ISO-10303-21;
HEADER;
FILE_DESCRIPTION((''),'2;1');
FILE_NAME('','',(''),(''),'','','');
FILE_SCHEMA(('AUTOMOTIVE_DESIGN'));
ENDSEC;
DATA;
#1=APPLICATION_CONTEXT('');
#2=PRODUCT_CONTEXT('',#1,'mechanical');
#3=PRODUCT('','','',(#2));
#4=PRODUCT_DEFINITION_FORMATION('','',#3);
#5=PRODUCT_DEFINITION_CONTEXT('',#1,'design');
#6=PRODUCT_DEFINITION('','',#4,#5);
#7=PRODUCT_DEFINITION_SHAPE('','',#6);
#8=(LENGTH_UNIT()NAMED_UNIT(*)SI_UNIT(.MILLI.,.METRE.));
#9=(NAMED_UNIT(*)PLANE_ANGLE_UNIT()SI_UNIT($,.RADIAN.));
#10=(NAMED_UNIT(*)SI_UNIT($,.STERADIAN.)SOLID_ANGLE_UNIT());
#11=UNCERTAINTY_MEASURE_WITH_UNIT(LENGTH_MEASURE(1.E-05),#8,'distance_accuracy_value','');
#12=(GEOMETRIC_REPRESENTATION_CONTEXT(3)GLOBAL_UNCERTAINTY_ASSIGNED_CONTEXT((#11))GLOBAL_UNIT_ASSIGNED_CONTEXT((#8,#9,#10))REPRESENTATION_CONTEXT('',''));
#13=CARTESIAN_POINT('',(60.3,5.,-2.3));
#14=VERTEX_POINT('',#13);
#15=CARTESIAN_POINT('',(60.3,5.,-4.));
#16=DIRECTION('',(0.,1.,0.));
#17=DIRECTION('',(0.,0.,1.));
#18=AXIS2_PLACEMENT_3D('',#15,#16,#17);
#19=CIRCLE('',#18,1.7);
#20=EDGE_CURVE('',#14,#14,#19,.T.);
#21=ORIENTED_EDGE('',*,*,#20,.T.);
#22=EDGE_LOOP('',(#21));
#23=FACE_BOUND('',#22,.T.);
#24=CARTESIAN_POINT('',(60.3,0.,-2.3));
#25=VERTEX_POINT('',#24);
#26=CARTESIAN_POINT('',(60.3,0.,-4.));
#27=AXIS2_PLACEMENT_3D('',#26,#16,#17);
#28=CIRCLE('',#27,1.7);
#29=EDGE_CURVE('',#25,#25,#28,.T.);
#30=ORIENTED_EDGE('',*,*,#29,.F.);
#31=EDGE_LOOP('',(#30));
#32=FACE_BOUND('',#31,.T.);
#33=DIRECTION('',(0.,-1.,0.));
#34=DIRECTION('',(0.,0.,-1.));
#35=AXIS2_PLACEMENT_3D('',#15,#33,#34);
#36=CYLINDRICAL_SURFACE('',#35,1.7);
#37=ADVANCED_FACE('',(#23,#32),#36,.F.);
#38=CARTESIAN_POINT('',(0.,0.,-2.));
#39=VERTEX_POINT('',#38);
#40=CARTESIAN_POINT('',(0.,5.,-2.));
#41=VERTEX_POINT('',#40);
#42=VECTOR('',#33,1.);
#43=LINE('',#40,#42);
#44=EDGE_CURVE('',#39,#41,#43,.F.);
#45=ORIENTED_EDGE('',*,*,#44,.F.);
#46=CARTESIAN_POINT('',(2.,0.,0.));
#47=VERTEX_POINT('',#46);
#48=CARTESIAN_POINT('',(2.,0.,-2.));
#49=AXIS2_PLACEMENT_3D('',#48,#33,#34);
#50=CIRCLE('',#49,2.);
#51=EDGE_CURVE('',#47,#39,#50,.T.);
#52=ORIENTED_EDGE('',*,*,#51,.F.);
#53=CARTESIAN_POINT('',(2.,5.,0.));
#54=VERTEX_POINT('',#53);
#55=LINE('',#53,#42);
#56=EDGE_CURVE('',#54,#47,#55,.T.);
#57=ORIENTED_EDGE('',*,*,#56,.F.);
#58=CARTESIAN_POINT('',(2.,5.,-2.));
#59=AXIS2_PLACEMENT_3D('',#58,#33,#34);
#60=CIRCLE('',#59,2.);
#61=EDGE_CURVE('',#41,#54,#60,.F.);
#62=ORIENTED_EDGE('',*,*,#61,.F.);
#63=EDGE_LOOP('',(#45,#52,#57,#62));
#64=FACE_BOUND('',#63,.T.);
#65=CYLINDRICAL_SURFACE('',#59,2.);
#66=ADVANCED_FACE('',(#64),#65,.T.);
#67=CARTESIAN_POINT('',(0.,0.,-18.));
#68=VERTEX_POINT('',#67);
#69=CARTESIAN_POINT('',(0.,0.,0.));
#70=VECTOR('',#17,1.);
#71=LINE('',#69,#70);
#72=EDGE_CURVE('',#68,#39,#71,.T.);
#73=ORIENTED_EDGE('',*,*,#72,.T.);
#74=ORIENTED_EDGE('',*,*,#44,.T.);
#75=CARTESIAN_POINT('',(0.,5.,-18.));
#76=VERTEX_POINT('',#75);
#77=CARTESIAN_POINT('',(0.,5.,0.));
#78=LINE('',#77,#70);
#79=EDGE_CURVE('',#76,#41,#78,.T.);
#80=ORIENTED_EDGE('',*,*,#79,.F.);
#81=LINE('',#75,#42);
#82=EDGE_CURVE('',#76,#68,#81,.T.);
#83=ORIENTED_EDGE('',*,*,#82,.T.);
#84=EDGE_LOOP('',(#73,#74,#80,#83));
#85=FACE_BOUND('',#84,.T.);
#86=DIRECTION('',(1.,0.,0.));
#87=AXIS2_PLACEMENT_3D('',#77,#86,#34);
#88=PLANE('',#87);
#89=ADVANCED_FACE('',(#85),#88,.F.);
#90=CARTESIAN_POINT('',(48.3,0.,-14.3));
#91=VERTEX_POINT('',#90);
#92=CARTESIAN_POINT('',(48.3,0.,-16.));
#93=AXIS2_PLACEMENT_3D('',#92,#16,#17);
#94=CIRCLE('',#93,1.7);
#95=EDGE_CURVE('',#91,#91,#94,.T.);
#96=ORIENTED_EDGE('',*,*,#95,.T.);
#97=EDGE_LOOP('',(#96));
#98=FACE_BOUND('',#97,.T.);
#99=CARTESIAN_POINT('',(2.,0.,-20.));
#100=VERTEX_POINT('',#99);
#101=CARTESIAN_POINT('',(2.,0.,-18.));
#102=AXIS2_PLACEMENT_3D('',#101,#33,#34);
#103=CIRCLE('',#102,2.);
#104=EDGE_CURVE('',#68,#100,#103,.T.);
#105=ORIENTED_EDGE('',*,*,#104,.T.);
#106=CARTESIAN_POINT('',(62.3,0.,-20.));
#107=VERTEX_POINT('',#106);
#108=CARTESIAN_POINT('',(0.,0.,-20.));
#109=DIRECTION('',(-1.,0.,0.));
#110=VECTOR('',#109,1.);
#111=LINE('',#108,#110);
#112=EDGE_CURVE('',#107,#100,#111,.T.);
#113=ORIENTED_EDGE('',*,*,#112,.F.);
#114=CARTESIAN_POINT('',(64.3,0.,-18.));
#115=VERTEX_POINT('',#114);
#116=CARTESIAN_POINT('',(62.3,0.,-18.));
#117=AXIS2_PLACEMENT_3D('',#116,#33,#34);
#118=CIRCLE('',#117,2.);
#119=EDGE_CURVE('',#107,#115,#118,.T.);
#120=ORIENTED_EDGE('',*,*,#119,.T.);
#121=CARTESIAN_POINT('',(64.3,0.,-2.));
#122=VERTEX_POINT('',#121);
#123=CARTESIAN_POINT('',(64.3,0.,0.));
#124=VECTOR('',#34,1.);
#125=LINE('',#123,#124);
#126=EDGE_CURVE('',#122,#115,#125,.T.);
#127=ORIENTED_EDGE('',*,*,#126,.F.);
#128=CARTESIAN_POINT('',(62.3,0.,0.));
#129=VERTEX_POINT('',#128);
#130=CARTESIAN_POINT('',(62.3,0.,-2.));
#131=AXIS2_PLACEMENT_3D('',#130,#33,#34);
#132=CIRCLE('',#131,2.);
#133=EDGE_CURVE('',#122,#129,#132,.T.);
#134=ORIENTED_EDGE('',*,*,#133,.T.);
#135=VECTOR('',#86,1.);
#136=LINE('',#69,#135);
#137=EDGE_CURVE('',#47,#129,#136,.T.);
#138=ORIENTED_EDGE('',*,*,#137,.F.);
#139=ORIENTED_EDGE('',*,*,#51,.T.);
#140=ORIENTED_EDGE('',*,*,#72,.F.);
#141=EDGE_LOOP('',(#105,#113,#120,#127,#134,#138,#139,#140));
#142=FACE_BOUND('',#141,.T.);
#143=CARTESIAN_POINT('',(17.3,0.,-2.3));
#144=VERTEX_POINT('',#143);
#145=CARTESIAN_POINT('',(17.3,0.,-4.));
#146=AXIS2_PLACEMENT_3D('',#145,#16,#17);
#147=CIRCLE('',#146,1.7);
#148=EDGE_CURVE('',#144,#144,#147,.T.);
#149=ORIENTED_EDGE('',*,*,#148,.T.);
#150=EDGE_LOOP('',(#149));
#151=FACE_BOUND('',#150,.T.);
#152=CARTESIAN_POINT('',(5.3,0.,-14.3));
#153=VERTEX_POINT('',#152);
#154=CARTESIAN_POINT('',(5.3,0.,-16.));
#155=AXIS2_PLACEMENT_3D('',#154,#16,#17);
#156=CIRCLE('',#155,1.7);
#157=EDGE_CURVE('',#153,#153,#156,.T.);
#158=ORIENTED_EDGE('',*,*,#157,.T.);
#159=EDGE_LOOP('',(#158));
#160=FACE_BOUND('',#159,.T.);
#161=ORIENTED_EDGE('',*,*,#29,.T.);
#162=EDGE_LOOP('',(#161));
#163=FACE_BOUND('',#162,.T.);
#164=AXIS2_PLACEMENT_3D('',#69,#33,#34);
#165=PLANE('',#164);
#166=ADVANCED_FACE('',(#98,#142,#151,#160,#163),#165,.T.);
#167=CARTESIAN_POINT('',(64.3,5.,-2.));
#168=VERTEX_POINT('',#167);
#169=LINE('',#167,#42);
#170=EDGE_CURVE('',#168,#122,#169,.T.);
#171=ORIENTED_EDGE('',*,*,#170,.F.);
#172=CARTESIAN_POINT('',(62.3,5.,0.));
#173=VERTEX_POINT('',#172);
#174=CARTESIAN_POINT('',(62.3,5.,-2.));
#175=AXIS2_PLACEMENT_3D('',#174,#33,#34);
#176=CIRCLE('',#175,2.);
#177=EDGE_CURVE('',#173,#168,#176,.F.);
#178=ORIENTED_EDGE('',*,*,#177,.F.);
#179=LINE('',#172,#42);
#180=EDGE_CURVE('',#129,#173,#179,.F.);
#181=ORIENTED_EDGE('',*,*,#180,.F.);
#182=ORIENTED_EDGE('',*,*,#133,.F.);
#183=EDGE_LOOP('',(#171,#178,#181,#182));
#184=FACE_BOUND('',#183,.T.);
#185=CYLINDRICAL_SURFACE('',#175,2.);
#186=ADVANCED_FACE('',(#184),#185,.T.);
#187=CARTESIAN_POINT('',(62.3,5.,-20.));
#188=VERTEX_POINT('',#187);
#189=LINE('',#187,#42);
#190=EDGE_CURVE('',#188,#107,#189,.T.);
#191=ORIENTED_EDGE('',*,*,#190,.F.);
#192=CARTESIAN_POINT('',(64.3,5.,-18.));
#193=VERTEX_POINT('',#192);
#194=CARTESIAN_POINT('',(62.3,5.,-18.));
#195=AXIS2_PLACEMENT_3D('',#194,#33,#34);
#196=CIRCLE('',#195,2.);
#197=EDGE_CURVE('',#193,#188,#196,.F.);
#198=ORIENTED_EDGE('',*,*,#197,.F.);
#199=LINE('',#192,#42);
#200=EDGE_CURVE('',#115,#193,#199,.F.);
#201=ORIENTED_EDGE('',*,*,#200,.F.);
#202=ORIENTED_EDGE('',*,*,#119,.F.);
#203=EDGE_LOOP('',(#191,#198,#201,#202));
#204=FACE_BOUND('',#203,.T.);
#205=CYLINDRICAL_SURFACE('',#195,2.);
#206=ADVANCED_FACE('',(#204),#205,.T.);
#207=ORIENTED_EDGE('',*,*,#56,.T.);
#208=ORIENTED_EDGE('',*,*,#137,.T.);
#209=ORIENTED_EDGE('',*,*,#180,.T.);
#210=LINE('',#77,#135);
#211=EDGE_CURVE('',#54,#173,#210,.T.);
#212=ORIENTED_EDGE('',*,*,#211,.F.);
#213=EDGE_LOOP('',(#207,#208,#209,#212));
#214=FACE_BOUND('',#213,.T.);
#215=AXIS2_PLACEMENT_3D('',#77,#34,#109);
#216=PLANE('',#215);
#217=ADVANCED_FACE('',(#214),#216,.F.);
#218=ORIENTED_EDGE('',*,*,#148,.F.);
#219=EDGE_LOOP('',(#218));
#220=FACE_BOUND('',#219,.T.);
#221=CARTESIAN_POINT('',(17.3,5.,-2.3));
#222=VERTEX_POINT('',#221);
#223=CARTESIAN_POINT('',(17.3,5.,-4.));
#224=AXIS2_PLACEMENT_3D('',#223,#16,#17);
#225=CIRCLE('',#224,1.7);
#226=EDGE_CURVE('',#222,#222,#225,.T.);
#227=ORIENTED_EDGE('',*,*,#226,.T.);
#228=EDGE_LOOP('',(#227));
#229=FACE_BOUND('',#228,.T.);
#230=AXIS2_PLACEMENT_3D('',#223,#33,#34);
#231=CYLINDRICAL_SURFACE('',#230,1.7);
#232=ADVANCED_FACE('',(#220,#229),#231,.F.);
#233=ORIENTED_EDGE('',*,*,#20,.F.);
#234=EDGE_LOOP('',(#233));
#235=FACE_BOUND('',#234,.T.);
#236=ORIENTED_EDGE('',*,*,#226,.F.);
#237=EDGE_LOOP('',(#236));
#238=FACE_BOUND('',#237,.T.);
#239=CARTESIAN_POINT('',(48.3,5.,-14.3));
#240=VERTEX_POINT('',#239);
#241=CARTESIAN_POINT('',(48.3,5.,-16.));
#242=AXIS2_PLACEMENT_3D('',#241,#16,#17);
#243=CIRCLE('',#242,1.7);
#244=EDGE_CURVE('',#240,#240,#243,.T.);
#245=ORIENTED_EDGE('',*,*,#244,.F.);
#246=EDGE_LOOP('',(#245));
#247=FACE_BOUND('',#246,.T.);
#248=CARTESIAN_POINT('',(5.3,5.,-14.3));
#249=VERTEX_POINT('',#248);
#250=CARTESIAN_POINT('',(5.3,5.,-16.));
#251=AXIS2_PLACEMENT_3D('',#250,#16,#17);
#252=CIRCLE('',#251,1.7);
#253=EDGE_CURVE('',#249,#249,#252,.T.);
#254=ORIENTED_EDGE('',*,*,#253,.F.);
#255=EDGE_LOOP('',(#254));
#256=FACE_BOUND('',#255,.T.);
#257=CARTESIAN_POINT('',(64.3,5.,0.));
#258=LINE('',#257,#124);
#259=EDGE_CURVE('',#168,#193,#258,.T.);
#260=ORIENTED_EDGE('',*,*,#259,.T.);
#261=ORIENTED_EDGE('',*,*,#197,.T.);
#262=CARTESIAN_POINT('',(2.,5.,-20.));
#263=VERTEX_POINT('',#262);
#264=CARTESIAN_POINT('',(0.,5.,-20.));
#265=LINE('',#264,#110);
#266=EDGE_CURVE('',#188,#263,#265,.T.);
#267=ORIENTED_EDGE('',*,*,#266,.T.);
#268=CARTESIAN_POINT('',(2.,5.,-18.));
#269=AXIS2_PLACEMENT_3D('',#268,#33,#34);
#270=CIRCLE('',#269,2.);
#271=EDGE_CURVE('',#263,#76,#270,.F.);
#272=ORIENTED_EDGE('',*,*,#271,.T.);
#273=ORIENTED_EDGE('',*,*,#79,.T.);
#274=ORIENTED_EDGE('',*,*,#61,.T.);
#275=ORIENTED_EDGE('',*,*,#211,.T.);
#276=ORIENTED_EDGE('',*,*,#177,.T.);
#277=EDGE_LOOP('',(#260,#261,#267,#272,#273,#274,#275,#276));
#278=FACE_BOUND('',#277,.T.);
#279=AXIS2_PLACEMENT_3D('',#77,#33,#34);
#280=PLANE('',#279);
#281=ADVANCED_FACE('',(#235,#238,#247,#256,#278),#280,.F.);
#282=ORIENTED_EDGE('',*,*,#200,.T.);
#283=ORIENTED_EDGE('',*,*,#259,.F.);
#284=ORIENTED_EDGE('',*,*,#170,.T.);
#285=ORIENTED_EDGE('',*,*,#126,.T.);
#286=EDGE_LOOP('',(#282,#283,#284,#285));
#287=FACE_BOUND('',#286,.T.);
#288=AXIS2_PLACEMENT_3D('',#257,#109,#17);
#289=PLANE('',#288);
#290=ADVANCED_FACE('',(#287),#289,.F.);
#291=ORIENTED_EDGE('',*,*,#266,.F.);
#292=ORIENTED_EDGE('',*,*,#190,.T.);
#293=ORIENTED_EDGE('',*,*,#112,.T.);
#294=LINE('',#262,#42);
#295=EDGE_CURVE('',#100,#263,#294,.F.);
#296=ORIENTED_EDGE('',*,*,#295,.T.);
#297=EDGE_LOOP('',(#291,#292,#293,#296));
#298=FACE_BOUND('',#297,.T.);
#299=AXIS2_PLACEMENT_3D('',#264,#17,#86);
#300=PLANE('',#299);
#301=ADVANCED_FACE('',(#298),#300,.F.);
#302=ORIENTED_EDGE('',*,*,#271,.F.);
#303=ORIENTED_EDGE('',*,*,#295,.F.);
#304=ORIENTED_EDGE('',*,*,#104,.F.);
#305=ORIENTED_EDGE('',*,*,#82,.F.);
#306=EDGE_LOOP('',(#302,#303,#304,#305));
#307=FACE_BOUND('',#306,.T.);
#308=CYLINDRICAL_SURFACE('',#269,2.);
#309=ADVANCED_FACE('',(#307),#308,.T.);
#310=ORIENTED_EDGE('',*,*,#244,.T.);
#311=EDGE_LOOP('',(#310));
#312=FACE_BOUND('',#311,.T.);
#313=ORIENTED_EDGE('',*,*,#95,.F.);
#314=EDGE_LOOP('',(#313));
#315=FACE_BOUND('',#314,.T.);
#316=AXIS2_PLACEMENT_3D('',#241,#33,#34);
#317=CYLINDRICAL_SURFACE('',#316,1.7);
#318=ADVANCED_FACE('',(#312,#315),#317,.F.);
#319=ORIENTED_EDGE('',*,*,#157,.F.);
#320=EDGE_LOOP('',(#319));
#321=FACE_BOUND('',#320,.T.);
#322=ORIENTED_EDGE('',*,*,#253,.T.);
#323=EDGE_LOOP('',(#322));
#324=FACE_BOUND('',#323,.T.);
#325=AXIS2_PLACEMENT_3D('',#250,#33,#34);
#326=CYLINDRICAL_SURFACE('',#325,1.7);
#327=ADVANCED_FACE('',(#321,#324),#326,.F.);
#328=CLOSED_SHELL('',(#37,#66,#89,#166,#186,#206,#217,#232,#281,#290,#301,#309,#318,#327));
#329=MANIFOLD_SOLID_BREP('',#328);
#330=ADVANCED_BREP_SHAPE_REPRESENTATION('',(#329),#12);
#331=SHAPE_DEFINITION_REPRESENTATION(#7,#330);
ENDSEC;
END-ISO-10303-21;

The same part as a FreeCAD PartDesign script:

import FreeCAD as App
import Part
import Sketcher
Q = App.Units.Quantity


def edges_at(feature, points):
    """Names of the edges that pass closest to the given points."""
    edges = feature.Shape.Edges
    near = lambda p: min(range(len(edges)), key=lambda i: edges[i].distToShape(Part.Vertex(*p))[0])
    return sorted({f"Edge{near(p) + 1}" for p in points})

doc = App.newDocument("Part")
body = doc.addObject("PartDesign::Body", "Body")

# Sketch on XZ plane
sketch1 = body.newObject("Sketcher::SketchObject", "Sketch")
sketch1.AttachmentSupport = (doc.getObject("XZ_Plane"), [""])
sketch1.MapMode = "FlatFace"
sketch1.addGeometry(Part.LineSegment(App.Vector(0, -20, 0), App.Vector(0, 0, 0)), False)
sketch1.addGeometry(Part.LineSegment(App.Vector(0, 0, 0), App.Vector(64.3, 0, 0)), False)
sketch1.addGeometry(Part.LineSegment(App.Vector(64.3, 0, 0), App.Vector(64.3, -20, 0)), False)
sketch1.addGeometry(Part.LineSegment(App.Vector(64.3, -20, 0), App.Vector(0, -20, 0)), False)
sketch1.addGeometry(Part.Circle(App.Vector(17.3, -4, 0), App.Vector(0, 0, 1), 1.7), False)
sketch1.addGeometry(Part.Circle(App.Vector(60.3, -4, 0), App.Vector(0, 0, 1), 1.7), False)
sketch1.addGeometry(Part.Circle(App.Vector(5.3, -16, 0), App.Vector(0, 0, 1), 1.7), False)
sketch1.addGeometry(Part.Circle(App.Vector(48.3, -16, 0), App.Vector(0, 0, 1), 1.7), False)
sketch1.addConstraint(Sketcher.Constraint("Coincident", 0, 2, 1, 1))
sketch1.addConstraint(Sketcher.Constraint("Coincident", 1, 2, 2, 1))
sketch1.addConstraint(Sketcher.Constraint("Coincident", 2, 2, 3, 1))
sketch1.addConstraint(Sketcher.Constraint("Coincident", 3, 2, 0, 1))
sketch1.addConstraint(Sketcher.Constraint("Vertical", 0))
sketch1.addConstraint(Sketcher.Constraint("Horizontal", 1))
sketch1.addConstraint(Sketcher.Constraint("Vertical", 2))
sketch1.addConstraint(Sketcher.Constraint("Horizontal", 3))
sketch1.addConstraint(Sketcher.Constraint("Coincident", 0, 2, -1, 1))
sketch1.addConstraint(Sketcher.Constraint("Equal", 4, 5))
sketch1.addConstraint(Sketcher.Constraint("Equal", 5, 6))
sketch1.addConstraint(Sketcher.Constraint("Equal", 6, 7))
sketch1.addConstraint(Sketcher.Constraint("Horizontal", 4, 3, 5, 3))
sketch1.addConstraint(Sketcher.Constraint("Horizontal", 6, 3, 7, 3))
sketch1.addConstraint(Sketcher.Constraint("Diameter", 4, Q("3.4 mm")))
sketch1.addConstraint(Sketcher.Constraint("DistanceY", 0, 1, 0, 2, Q("20 mm")))
sketch1.addConstraint(Sketcher.Constraint("DistanceX", 1, 1, 1, 2, Q("64.3 mm")))
sketch1.addConstraint(Sketcher.Constraint("DistanceY", 4, 3, -1, 1, Q("4 mm")))
sketch1.addConstraint(Sketcher.Constraint("DistanceY", 6, 3, -1, 1, Q("16 mm")))
sketch1.addConstraint(Sketcher.Constraint("DistanceX", 4, 3, 5, 3, Q("43 mm")))
sketch1.addConstraint(Sketcher.Constraint("DistanceX", 6, 3, 4, 3, Q("12 mm")))
sketch1.addConstraint(Sketcher.Constraint("DistanceX", 7, 3, 5, 3, Q("12 mm")))
sketch1.addConstraint(Sketcher.Constraint("DistanceX", 5, 3, 1, 2, Q("4 mm")))
pad1 = body.newObject("PartDesign::Pad", "Pad")
pad1.Profile = sketch1
pad1.Length = 5
pad1.Reversed = True
doc.recompute()

fillet = body.newObject("PartDesign::Fillet", "Fillet")
fillet.Base = (pad1, edges_at(pad1, [
    (0, 2.5, -20),
    (64.3, 2.5, -20),
    (64.3, 2.5, 0),
    (0, 2.5, 0),
]))
fillet.Radius = 2

doc.recompute()
